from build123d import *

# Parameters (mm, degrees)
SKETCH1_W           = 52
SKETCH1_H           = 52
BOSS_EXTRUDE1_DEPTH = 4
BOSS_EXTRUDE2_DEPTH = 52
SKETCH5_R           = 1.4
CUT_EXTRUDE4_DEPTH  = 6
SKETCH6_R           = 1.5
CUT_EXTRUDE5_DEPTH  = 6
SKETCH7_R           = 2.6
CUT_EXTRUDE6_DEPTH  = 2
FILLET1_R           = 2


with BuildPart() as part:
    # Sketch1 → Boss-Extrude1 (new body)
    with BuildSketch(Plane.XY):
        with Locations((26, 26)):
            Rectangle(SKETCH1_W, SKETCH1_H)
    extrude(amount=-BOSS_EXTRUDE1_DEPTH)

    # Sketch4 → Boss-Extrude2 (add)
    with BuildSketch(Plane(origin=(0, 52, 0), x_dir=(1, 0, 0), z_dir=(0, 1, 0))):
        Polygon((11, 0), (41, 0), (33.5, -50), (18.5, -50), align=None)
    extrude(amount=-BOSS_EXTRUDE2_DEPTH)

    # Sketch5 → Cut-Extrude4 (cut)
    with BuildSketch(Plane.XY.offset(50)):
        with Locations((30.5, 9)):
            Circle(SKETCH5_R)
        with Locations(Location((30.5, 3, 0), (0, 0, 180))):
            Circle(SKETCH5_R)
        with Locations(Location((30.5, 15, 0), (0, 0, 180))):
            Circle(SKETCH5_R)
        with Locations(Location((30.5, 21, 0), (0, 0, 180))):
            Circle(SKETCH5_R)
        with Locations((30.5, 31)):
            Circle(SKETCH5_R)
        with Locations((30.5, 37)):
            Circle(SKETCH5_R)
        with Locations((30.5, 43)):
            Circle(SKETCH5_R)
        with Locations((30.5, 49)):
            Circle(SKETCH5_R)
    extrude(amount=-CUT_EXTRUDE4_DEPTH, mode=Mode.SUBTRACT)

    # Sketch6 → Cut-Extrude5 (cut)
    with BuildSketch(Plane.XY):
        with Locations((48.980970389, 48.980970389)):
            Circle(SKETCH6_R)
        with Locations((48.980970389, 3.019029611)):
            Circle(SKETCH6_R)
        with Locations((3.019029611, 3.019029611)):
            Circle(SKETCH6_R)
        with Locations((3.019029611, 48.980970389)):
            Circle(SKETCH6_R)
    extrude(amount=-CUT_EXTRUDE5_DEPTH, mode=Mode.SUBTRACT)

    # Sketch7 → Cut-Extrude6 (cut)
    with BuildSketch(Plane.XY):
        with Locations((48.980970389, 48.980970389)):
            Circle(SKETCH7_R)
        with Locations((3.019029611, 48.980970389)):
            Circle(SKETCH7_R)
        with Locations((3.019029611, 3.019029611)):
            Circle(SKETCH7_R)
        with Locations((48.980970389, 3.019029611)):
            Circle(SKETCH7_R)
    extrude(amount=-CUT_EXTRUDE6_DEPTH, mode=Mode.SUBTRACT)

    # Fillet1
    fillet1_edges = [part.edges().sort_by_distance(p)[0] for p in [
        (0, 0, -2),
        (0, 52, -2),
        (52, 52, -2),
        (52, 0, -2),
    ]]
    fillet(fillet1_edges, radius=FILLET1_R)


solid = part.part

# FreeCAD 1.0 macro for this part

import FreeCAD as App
import Part
import Sketcher
Q = App.Units.Quantity


def edges_at(feature, points):
    """Names of the edges that pass closest to the given points."""
    edges = feature.Shape.Edges
    near = lambda p: min(range(len(edges)), key=lambda i: edges[i].distToShape(Part.Vertex(*p))[0])
    return sorted({f"Edge{near(p) + 1}" for p in points})


def add_polygon(sketch, points):
    """Adds a closed chain of lines whose ends are joined by coincident constraints."""
    first, n = sketch.GeometryCount, len(points)
    for a, b in zip(points, points[1:] + points[:1]):
        sketch.addGeometry(Part.LineSegment(App.Vector(*a, 0), App.Vector(*b, 0)), False)
    for i in range(n):
        sketch.addConstraint(Sketcher.Constraint("Coincident", first + i, 2, first + (i + 1) % n, 1))

doc = App.newDocument("Part")
params = doc.addObject("Spreadsheet::Sheet", "Params")
for row, (alias, value) in enumerate([
    ("sketch1_width", "52 mm"),
    ("pad1_length", "4 mm"),
    ("sketch2_width", "30 mm"),
    ("sketch2_width2", "15 mm"),
    ("pad2_length", "52 mm"),
    ("sketch3_diameter", "2.8 mm"),
    ("pocket1_length", "6 mm"),
    ("sketch4_diameter", "3 mm"),
    ("pocket2_length", "6 mm"),
    ("sketch5_diameter", "5.2 mm"),
    ("pocket3_length", "2 mm"),
    ("fillet_radius", "2 mm"),
], start=1):
    params.set(f"A{row}", alias)
    params.set(f"B{row}", "=" + value)
    params.setAlias(f"B{row}", alias)

body = doc.addObject("PartDesign::Body", "Body")

# Sketch on XY plane
sketch1 = doc.addObject("Sketcher::SketchObject", "Sketch")
body.addObject(sketch1)
sketch1.AttachmentSupport = (doc.XY_Plane, [""])
sketch1.MapMode = "FlatFace"
add_polygon(sketch1, [(0, 52), (0, 0), (52, 0), (52, 52)])  # lines 0-3
sketch1.addConstraint(Sketcher.Constraint("Vertical", 0))
sketch1.addConstraint(Sketcher.Constraint("Horizontal", 1))
sketch1.addConstraint(Sketcher.Constraint("Vertical", 2))
sketch1.addConstraint(Sketcher.Constraint("Horizontal", 3))
sketch1.addConstraint(Sketcher.Constraint("Coincident", 0, 2, -1, 1))
sketch1.addConstraint(Sketcher.Constraint("Equal", 3, 0))
sketch1.addConstraint(Sketcher.Constraint("DistanceX", 1, 1, 1, 2, Q("52 mm")))
sketch1.setExpression("Constraints[10]", "Params.sketch1_width")
pad1 = doc.addObject("PartDesign::Pad", "Pad")
body.addObject(pad1)
pad1.Profile = sketch1
pad1.setExpression("Length", "Params.pad1_length")
pad1.Reversed = True

# Sketch on XZ plane
sketch2 = doc.addObject("Sketcher::SketchObject", "Sketch001")
body.addObject(sketch2)
sketch2.AttachmentSupport = (doc.XZ_Plane, [""])
sketch2.MapMode = "FlatFace"
sketch2.AttachmentOffset = App.Placement(App.Vector(0, 0, -52), App.Rotation())
add_polygon(sketch2, [(41, 0), (11, 0), (18, 50), (34, 50)])  # lines 0-3
sketch2.addConstraint(Sketcher.Constraint("Horizontal", 0))
sketch2.addConstraint(Sketcher.Constraint("Horizontal", 2))
sketch2.addConstraint(Sketcher.Constraint("PointOnObject", 0, 2, -1))
sketch2.addConstraint(Sketcher.Constraint("Equal", 1, 3))
sketch2.addConstraint(Sketcher.Constraint("DistanceX", 0, 2, 0, 1, Q("30 mm")))
sketch2.addConstraint(Sketcher.Constraint("DistanceX", 2, 1, 2, 2, Q("15 mm")))
sketch2.addConstraint(Sketcher.Constraint("DistanceX", -1, 1, 0, 2, Q("11 mm")))
sketch2.addConstraint(Sketcher.Constraint("DistanceY", -1, 1, 1, 2, Q("50 mm")))
sketch2.setExpression("Constraints[8]", "Params.sketch2_width")
sketch2.setExpression("Constraints[9]", "Params.sketch2_width2")
pad2 = doc.addObject("PartDesign::Pad", "Pad001")
body.addObject(pad2)
pad2.Profile = sketch2
pad2.setExpression("Length", "Params.pad2_length")

# Sketch on XY plane
sketch3 = doc.addObject("Sketcher::SketchObject", "Sketch002")
body.addObject(sketch3)
sketch3.AttachmentSupport = (doc.XY_Plane, [""])
sketch3.MapMode = "FlatFace"
sketch3.AttachmentOffset = App.Placement(App.Vector(0, 0, 50), App.Rotation())
sketch3.addGeometry(Part.Circle(App.Vector(30.5, 9, 0), App.Vector(0, 0, 1), 1.4), False)
sketch3.addGeometry(Part.Circle(App.Vector(30.5, 3, 0), App.Vector(0, 0, 1), 1.4), False)
sketch3.addGeometry(Part.Circle(App.Vector(30.5, 15, 0), App.Vector(0, 0, 1), 1.4), False)
sketch3.addGeometry(Part.Circle(App.Vector(30.5, 21, 0), App.Vector(0, 0, 1), 1.4), False)
sketch3.addGeometry(Part.Circle(App.Vector(30.5, 31, 0), App.Vector(0, 0, 1), 1.4), False)
sketch3.addGeometry(Part.Circle(App.Vector(30.5, 37, 0), App.Vector(0, 0, 1), 1.4), False)
sketch3.addGeometry(Part.Circle(App.Vector(30.5, 43, 0), App.Vector(0, 0, 1), 1.4), False)
sketch3.addGeometry(Part.Circle(App.Vector(30.5, 49, 0), App.Vector(0, 0, 1), 1.4), False)
sketch3.addConstraint(Sketcher.Constraint("Equal", 0, 1))
sketch3.addConstraint(Sketcher.Constraint("Equal", 1, 2))
sketch3.addConstraint(Sketcher.Constraint("Equal", 2, 3))
sketch3.addConstraint(Sketcher.Constraint("Equal", 3, 4))
sketch3.addConstraint(Sketcher.Constraint("Equal", 4, 5))
sketch3.addConstraint(Sketcher.Constraint("Equal", 5, 6))
sketch3.addConstraint(Sketcher.Constraint("Equal", 6, 7))
sketch3.addConstraint(Sketcher.Constraint("Vertical", 0, 3, 1, 3))
sketch3.addConstraint(Sketcher.Constraint("Vertical", 1, 3, 2, 3))
sketch3.addConstraint(Sketcher.Constraint("Vertical", 2, 3, 3, 3))
sketch3.addConstraint(Sketcher.Constraint("Vertical", 3, 3, 4, 3))
sketch3.addConstraint(Sketcher.Constraint("Vertical", 4, 3, 5, 3))
sketch3.addConstraint(Sketcher.Constraint("Vertical", 5, 3, 6, 3))
sketch3.addConstraint(Sketcher.Constraint("Vertical", 6, 3, 7, 3))
sketch3.addConstraint(Sketcher.Constraint("Diameter", 0, Q("2.8 mm")))
sketch3.addConstraint(Sketcher.Constraint("DistanceY", -1, 1, 0, 3, Q("9 mm")))
sketch3.addConstraint(Sketcher.Constraint("DistanceY", -1, 1, 1, 3, Q("3 mm")))
sketch3.addConstraint(Sketcher.Constraint("DistanceY", -1, 1, 2, 3, Q("15 mm")))
sketch3.addConstraint(Sketcher.Constraint("DistanceY", -1, 1, 3, 3, Q("21 mm")))
sketch3.addConstraint(Sketcher.Constraint("DistanceY", -1, 1, 4, 3, Q("31 mm")))
sketch3.addConstraint(Sketcher.Constraint("DistanceY", -1, 1, 5, 3, Q("37 mm")))
sketch3.addConstraint(Sketcher.Constraint("DistanceY", -1, 1, 6, 3, Q("43 mm")))
sketch3.addConstraint(Sketcher.Constraint("DistanceY", -1, 1, 7, 3, Q("49 mm")))
sketch3.addConstraint(Sketcher.Constraint("DistanceX", -1, 1, 0, 3, Q("30.5 mm")))
sketch3.setExpression("Constraints[14]", "Params.sketch3_diameter")
pocket1 = doc.addObject("PartDesign::Pocket", "Pocket")
body.addObject(pocket1)
pocket1.Profile = sketch3
pocket1.setExpression("Length", "Params.pocket1_length")

# Sketch on XY plane
sketch4 = doc.addObject("Sketcher::SketchObject", "Sketch003")
body.addObject(sketch4)
sketch4.AttachmentSupport = (doc.XY_Plane, [""])
sketch4.MapMode = "FlatFace"
sketch4.addGeometry(Part.Circle(App.Vector(49, 49, 0), App.Vector(0, 0, 1), 1.5), False)
sketch4.addGeometry(Part.Circle(App.Vector(49, 3, 0), App.Vector(0, 0, 1), 1.5), False)
sketch4.addGeometry(Part.Circle(App.Vector(3, 3, 0), App.Vector(0, 0, 1), 1.5), False)
sketch4.addGeometry(Part.Circle(App.Vector(3, 49, 0), App.Vector(0, 0, 1), 1.5), False)
sketch4.addConstraint(Sketcher.Constraint("Equal", 0, 1))
sketch4.addConstraint(Sketcher.Constraint("Equal", 1, 2))
sketch4.addConstraint(Sketcher.Constraint("Equal", 2, 3))
sketch4.addConstraint(Sketcher.Constraint("Horizontal", 1, 3, 2, 3))
sketch4.addConstraint(Sketcher.Constraint("Horizontal", 0, 3, 3, 3))
sketch4.addConstraint(Sketcher.Constraint("Vertical", 0, 3, 1, 3))
sketch4.addConstraint(Sketcher.Constraint("Vertical", 2, 3, 3, 3))
sketch4.addConstraint(Sketcher.Constraint("Diameter", 0, Q("3 mm")))
sketch4.addConstraint(Sketcher.Constraint("DistanceX", -1, 1, 0, 3, Q("48.98097 mm")))
sketch4.addConstraint(Sketcher.Constraint("DistanceY", -1, 1, 0, 3, Q("48.98097 mm")))
sketch4.addConstraint(Sketcher.Constraint("DistanceY", -1, 1, 1, 3, Q("3.01903 mm")))
sketch4.addConstraint(Sketcher.Constraint("DistanceX", -1, 1, 2, 3, Q("3.01903 mm")))
sketch4.setExpression("Constraints[7]", "Params.sketch4_diameter")
pocket2 = doc.addObject("PartDesign::Pocket", "Pocket001")
body.addObject(pocket2)
pocket2.Profile = sketch4
pocket2.setExpression("Length", "Params.pocket2_length")

# Sketch on XY plane
sketch5 = doc.addObject("Sketcher::SketchObject", "Sketch004")
body.addObject(sketch5)
sketch5.AttachmentSupport = (doc.XY_Plane, [""])
sketch5.MapMode = "FlatFace"
sketch5.addGeometry(Part.Circle(App.Vector(49, 49, 0), App.Vector(0, 0, 1), 2.6), False)
sketch5.addGeometry(Part.Circle(App.Vector(3, 49, 0), App.Vector(0, 0, 1), 2.6), False)
sketch5.addGeometry(Part.Circle(App.Vector(3, 3, 0), App.Vector(0, 0, 1), 2.6), False)
sketch5.addGeometry(Part.Circle(App.Vector(49, 3, 0), App.Vector(0, 0, 1), 2.6), False)
sketch5.addConstraint(Sketcher.Constraint("Equal", 0, 1))
sketch5.addConstraint(Sketcher.Constraint("Equal", 1, 2))
sketch5.addConstraint(Sketcher.Constraint("Equal", 2, 3))
sketch5.addConstraint(Sketcher.Constraint("Horizontal", 0, 3, 1, 3))
sketch5.addConstraint(Sketcher.Constraint("Horizontal", 2, 3, 3, 3))
sketch5.addConstraint(Sketcher.Constraint("Vertical", 1, 3, 2, 3))
sketch5.addConstraint(Sketcher.Constraint("Vertical", 0, 3, 3, 3))
sketch5.addConstraint(Sketcher.Constraint("Diameter", 0, Q("5.2 mm")))
sketch5.addConstraint(Sketcher.Constraint("DistanceX", -1, 1, 0, 3, Q("48.98097 mm")))
sketch5.addConstraint(Sketcher.Constraint("DistanceY", -1, 1, 0, 3, Q("48.98097 mm")))
sketch5.addConstraint(Sketcher.Constraint("DistanceX", -1, 1, 1, 3, Q("3.01903 mm")))
sketch5.addConstraint(Sketcher.Constraint("DistanceY", -1, 1, 2, 3, Q("3.01903 mm")))
sketch5.setExpression("Constraints[7]", "Params.sketch5_diameter")
pocket3 = doc.addObject("PartDesign::Pocket", "Pocket002")
body.addObject(pocket3)
pocket3.Profile = sketch5
pocket3.setExpression("Length", "Params.pocket3_length")
doc.recompute()

fillet = doc.addObject("PartDesign::Fillet", "Fillet")
body.addObject(fillet)
fillet.Base = (pocket3, edges_at(pocket3, [
    (0, 0, -2),
    (0, 52, -2),
    (52, 52, -2),
    (52, 0, -2),
]))
fillet.setExpression("Radius", "Params.fillet_radius")

doc.recompute()
